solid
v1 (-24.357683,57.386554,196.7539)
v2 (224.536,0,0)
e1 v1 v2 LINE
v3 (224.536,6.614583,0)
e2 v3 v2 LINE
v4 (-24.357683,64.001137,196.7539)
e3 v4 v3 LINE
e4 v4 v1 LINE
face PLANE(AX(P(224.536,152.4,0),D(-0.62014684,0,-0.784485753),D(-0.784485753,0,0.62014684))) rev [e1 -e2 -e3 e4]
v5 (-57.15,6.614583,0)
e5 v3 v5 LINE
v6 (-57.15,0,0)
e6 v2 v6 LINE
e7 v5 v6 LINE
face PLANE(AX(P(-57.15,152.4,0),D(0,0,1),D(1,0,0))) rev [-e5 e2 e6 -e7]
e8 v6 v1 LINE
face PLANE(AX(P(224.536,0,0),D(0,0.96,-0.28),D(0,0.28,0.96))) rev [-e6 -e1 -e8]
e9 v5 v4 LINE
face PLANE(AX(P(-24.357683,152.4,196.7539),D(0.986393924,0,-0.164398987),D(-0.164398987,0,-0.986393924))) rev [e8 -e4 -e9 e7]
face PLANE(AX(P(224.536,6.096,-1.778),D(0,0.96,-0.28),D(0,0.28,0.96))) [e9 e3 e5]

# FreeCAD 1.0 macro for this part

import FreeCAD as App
import Part
import Sketcher

V = App.Vector
Q = App.Units.Quantity


def faces_at(feature, points):
    """Names of the faces that lie closest to the given points."""
    faces = feature.Shape.Faces
    near = lambda p: min(range(len(faces)), key=lambda i: faces[i].distToShape(Part.Vertex(*p))[0])
    return sorted({f"Face{near(p) + 1}" for p in points})


def add_polygon(sketch, points):
    """Adds a closed chain of lines whose ends are joined by coincident constraints."""
    first, n = sketch.GeometryCount, len(points)
    for a, b in zip(points, points[1:] + points[:1]):
        sketch.addGeometry(Part.LineSegment(App.Vector(*a, 0), App.Vector(*b, 0)), False)
    for i in range(n):
        sketch.addConstraint(Sketcher.Constraint("Coincident", first + i, 2, first + (i + 1) % n, 1))

doc = App.newDocument("Part")
body = doc.addObject("PartDesign::Body", "Body")

sketch1 = doc.addObject("Sketcher::SketchObject", "Sketch")
body.addObject(sketch1)
sketch1.AttachmentSupport = (doc.XZ_Plane, [""])
sketch1.MapMode = "FlatFace"
add_polygon(sketch1, [(225, 0), (-57, 0), (-24, 197)])
sketch1.addConstraint(Sketcher.Constraint("Horizontal", 0))
sketch1.addConstraint(Sketcher.Constraint("PointOnObject", 0, 2, -1))
sketch1.addConstraint(Sketcher.Constraint("DistanceX", 0, 2, 0, 1, Q("11.09 in")))
sketch1.addConstraint(Sketcher.Constraint("DistanceX", 0, 2, -1, 1, Q("2.25 in")))
sketch1.addConstraint(Sketcher.Constraint("DistanceY", -1, 1, 1, 2, Q("196.7539 mm")))
sketch1.addConstraint(Sketcher.Constraint("Distance", 1, Q("199.467875 mm")))
pad1 = doc.addObject("PartDesign::Pad", "Pad")
body.addObject(pad1)
pad1.Profile = sketch1
pad1.Length = Q("6 in")
pad1.Reversed = True

sketch2 = doc.addObject("Sketcher::SketchObject", "Sketch001")
body.addObject(sketch2)
sketch2.AttachmentSupport = (doc.YZ_Plane, [""])
sketch2.MapMode = "FlatFace"
sketch2.AttachmentOffset = App.Placement(V(0, 0, -2.5 * 25.4), App.Rotation())
add_polygon(sketch2, [(69, 235), (-39, 235), (-39, -39), (191, -39), (191, 235), (84, 235), (152, 0), (0, 0)])
sketch2.addConstraint(Sketcher.Constraint("Horizontal", 0))
sketch2.addConstraint(Sketcher.Constraint("Vertical", 1))
sketch2.addConstraint(Sketcher.Constraint("Horizontal", 2))
sketch2.addConstraint(Sketcher.Constraint("Vertical", 3))
sketch2.addConstraint(Sketcher.Constraint("Horizontal", 4))
sketch2.addConstraint(Sketcher.Constraint("Horizontal", 6))
sketch2.addConstraint(Sketcher.Constraint("Coincident", 6, 2, -1, 1))
sketch2.addConstraint(Sketcher.Constraint("Horizontal", 0, 2, 3, 2))
sketch2.addConstraint(Sketcher.Constraint("Equal", 0, 4))
sketch2.addConstraint(Sketcher.Constraint("Equal", 5, 7))
sketch2.addConstraint(Sketcher.Constraint("DistanceX", 6, 2, 6, 1, Q("6 in")))
sketch2.addConstraint(Sketcher.Constraint("DistanceX", 2, 1, 2, 2, Q("229.576 mm")))
sketch2.addConstraint(Sketcher.Constraint("DistanceY", 1, 2, 1, 1, Q("273.93 mm")))
sketch2.addConstraint(Sketcher.Constraint("DistanceY", -1, 1, 0, 2, Q("235.342 mm")))
sketch2.addConstraint(Sketcher.Constraint("DistanceX", 0, 2, 0, 1, Q("107.229417 mm")))
pocket1 = doc.addObject("PartDesign::Pocket", "Pocket")
body.addObject(pocket1)
pocket1.Profile = sketch2
pocket1.Type = "ThroughAll"
pocket1.Reversed = True
doc.recompute()

thickness = doc.addObject("PartDesign::Thickness", "Thickness")
body.addObject(thickness)
thickness.Base = (pocket1, faces_at(pocket1, [(83.693, 76.2, 0)]))
thickness.Value = Q("0.25 in")
thickness.Reversed = True
thickness.Join = "Intersection"

sketch3 = doc.addObject("Sketcher::SketchObject", "Sketch002")
body.addObject(sketch3)
sketch3.AttachmentSupport = (doc.YZ_Plane, [""])
sketch3.MapMode = "FlatFace"
sketch3.AttachmentOffset = App.Placement(V(0, 0, -2.5 * 25.4), App.Rotation())
add_polygon(sketch3, [(275, 0), (217, 197), (64, 197), (7, 0)])
sketch3.addConstraint(Sketcher.Constraint("Horizontal", 1))
sketch3.addConstraint(Sketcher.Constraint("Horizontal", 3))
sketch3.addConstraint(Sketcher.Constraint("PointOnObject", 2, 2, -1))
sketch3.addConstraint(Sketcher.Constraint("Equal", 0, 2))
sketch3.addConstraint(Sketcher.Constraint("DistanceY", -1, 1, 0, 2, Q("196.7539 mm")))
sketch3.addConstraint(Sketcher.Constraint("Distance", 0, Q("204.951979 mm")))
sketch3.addConstraint(Sketcher.Constraint("DistanceX", 1, 2, 1, 1, Q("153.223914 mm")))
sketch3.addConstraint(Sketcher.Constraint("DistanceX", -1, 1, 0, 2, Q("217.225051 mm")))
pocket2 = doc.addObject("PartDesign::Pocket", "Pocket001")
body.addObject(pocket2)
pocket2.Profile = sketch3
pocket2.Type = "ThroughAll"
pocket2.Reversed = True

doc.recompute()
